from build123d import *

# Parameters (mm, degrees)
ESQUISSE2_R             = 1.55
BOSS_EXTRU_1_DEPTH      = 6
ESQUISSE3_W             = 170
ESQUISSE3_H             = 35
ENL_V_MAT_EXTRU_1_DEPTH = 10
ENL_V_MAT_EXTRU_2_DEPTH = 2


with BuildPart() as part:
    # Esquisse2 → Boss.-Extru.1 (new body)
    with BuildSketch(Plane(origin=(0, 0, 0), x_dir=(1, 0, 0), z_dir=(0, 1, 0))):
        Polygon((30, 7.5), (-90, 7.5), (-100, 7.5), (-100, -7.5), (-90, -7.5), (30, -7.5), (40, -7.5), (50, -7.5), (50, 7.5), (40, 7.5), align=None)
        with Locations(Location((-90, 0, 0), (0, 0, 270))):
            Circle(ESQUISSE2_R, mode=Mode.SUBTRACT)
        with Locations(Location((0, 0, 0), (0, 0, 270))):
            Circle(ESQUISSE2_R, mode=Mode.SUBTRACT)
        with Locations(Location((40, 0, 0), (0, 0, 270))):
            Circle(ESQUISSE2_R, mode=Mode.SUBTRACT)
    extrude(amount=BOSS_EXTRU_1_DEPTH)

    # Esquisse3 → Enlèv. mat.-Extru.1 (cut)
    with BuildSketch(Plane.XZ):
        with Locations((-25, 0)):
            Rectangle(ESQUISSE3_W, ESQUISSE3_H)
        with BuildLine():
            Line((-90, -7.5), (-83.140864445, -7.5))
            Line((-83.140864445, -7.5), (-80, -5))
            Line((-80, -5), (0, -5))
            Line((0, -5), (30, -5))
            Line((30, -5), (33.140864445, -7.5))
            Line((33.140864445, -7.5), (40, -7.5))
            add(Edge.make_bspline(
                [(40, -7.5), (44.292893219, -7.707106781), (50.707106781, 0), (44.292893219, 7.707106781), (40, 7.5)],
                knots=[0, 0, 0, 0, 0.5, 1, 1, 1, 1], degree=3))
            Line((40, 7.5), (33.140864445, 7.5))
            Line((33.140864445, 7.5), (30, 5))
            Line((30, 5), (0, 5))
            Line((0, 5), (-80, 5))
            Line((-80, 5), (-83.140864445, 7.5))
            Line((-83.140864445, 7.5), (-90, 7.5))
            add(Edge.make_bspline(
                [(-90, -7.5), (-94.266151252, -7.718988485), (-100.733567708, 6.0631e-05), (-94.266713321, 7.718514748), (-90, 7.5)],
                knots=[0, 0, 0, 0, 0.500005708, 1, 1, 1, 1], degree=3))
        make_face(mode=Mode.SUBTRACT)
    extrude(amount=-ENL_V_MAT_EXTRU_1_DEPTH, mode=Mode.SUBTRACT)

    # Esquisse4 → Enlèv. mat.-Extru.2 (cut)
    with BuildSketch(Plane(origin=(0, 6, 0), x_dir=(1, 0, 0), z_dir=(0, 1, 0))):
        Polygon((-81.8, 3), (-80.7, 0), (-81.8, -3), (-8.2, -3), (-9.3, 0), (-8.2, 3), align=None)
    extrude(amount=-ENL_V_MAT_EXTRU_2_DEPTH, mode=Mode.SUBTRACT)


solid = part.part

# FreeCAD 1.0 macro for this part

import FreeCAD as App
import Part
import Sketcher
from FreeCAD import Vector


def add_polygon(sketch, points):
    """Adds a closed chain of lines whose ends are joined by coincident constraints."""
    first, n = sketch.GeometryCount, len(points)
    for a, b in zip(points, points[1:] + points[:1]):
        sketch.addGeometry(Part.LineSegment(App.Vector(*a, 0), App.Vector(*b, 0)), False)
    for i in range(n):
        sketch.addConstraint(Sketcher.Constraint("Coincident", first + i, 2, first + (i + 1) % n, 1))

doc = App.newDocument("Part")
body = doc.addObject("PartDesign::Body", "Body")

# Sketch on XZ plane
sketch1 = body.newObject("Sketcher::SketchObject", "Sketch")
sketch1.AttachmentSupport = (doc.getObject("XZ_Plane"), [""])
sketch1.MapMode = "FlatFace"
add_polygon(sketch1, [(-100, -7.5), (-100, 7.5), (50, 7.5), (50, -7.5)])  # lines 0-3
sketch1.addGeometry(Part.Circle(Vector(-90, 0, 0), Vector(0, 0, 1), 1.6), False)  # 4
sketch1.addGeometry(Part.Circle(Vector(0, 0, 0), Vector(0, 0, 1), 1.6), False)  # 5
sketch1.addGeometry(Part.Circle(Vector(40, 0, 0), Vector(0, 0, 1), 1.6), False)  # 6
sketch1.addConstraint([
    Sketcher.Constraint("Vertical", 0),
    Sketcher.Constraint("Horizontal", 1),
    Sketcher.Constraint("Vertical", 2),
    Sketcher.Constraint("Horizontal", 3),
    Sketcher.Constraint("Coincident", 5, 3, -1, 1),
    Sketcher.Constraint("Equal", 4, 5),
    Sketcher.Constraint("Equal", 5, 6),
    Sketcher.Constraint("PointOnObject", 4, 3, -1),
    Sketcher.Constraint("PointOnObject", 6, 3, -1),
    Sketcher.Constraint("Diameter", 4, 3.1),
    Sketcher.Constraint("DistanceX", 1, 1, 1, 2, 150.0),
    Sketcher.Constraint("DistanceY", 0, 1, 0, 2, 15.0),
    Sketcher.Constraint("DistanceX", 4, 3, -1, 1, 90.0),
    Sketcher.Constraint("DistanceX", -1, 1, 6, 3, 40.0),
    Sketcher.Constraint("DistanceX", 0, 2, -1, 1, 100.0),
    Sketcher.Constraint("DistanceY", -1, 1, 0, 2, 7.5),
])
pad1 = body.newObject("PartDesign::Pad", "Pad")
pad1.Profile = sketch1
pad1.Length = 6
pad1.Reversed = True

# Sketch on XZ plane
sketch2 = body.newObject("Sketcher::SketchObject", "Sketch001")
sketch2.AttachmentSupport = (doc.getObject("XZ_Plane"), [""])
sketch2.MapMode = "FlatFace"
add_polygon(sketch2, [(-110, 17.5), (-110, -17.5), (60, -17.5), (60, 17.5)])  # lines 0-3
sketch2.addGeometry(Part.LineSegment(Vector(-83.140864, -7.5, 0), Vector(-90, -7.5, 0)), False)  # 4
sketch2.addGeometry(Part.BSplineCurve([Vector(-90, -7.5, 0), Vector(-94.266151, -7.718988, 0), Vector(-100.733568, 0.000061, 0), Vector(-94.266713, 7.718515, 0), Vector(-90, 7.5, 0)], [4, 1, 4], [0, 0.500005708, 1], False, 3, [1, 1, 1, 1, 1], False), False)  # 5
sketch2.addGeometry(Part.LineSegment(Vector(-90, 7.5, 0), Vector(-83.140864, 7.5, 0)), False)  # 6
sketch2.addGeometry(Part.LineSegment(Vector(-83.140864, 7.5, 0), Vector(-80, 5, 0)), False)  # 7
sketch2.addGeometry(Part.LineSegment(Vector(-80, 5, 0), Vector(30, 5, 0)), False)  # 8
sketch2.addGeometry(Part.LineSegment(Vector(30, 5, 0), Vector(33.140864, 7.5, 0)), False)  # 9
sketch2.addGeometry(Part.LineSegment(Vector(33.140864, 7.5, 0), Vector(40, 7.5, 0)), False)  # 10
sketch2.addGeometry(Part.BSplineCurve([Vector(40, -7.5, 0), Vector(44.292893, -7.707107, 0), Vector(50.707107, 0, 0), Vector(44.292893, 7.707107, 0), Vector(40, 7.5, 0)], [4, 1, 4], [0, 0.5, 1], False, 3, [1, 1, 1, 1, 1], False), False)  # 11
sketch2.addGeometry(Part.LineSegment(Vector(40, -7.5, 0), Vector(33.140864, -7.5, 0)), False)  # 12
sketch2.addGeometry(Part.LineSegment(Vector(33.140864, -7.5, 0), Vector(30, -5, 0)), False)  # 13
sketch2.addGeometry(Part.LineSegment(Vector(30, -5, 0), Vector(-80, -5, 0)), False)  # 14
sketch2.addGeometry(Part.LineSegment(Vector(-80, -5, 0), Vector(-83.140864, -7.5, 0)), False)  # 15
sketch2.addConstraint([
    Sketcher.Constraint("Block", 5),
    Sketcher.Constraint("Block", 11),
    Sketcher.Constraint("Coincident", 4, 2, 5, 1),
    Sketcher.Constraint("Coincident", 5, 2, 6, 1),
    Sketcher.Constraint("Coincident", 6, 2, 7, 1),
    Sketcher.Constraint("Coincident", 7, 2, 8, 1),
    Sketcher.Constraint("Coincident", 8, 2, 9, 1),
    Sketcher.Constraint("Coincident", 9, 2, 10, 1),
    Sketcher.Constraint("Coincident", 10, 2, 11, 2),
    Sketcher.Constraint("Coincident", 11, 1, 12, 1),
    Sketcher.Constraint("Coincident", 12, 2, 13, 1),
    Sketcher.Constraint("Coincident", 13, 2, 14, 1),
    Sketcher.Constraint("Coincident", 14, 2, 15, 1),
    Sketcher.Constraint("Coincident", 15, 2, 4, 1),
    Sketcher.Constraint("Vertical", 0),
    Sketcher.Constraint("Horizontal", 1),
    Sketcher.Constraint("Vertical", 2),
    Sketcher.Constraint("Horizontal", 3),
    Sketcher.Constraint("Horizontal", 4),
    Sketcher.Constraint("Horizontal", 6),
    Sketcher.Constraint("Horizontal", 8),
    Sketcher.Constraint("Horizontal", 10),
    Sketcher.Constraint("Horizontal", 12),
    Sketcher.Constraint("Horizontal", 14),
    Sketcher.Constraint("DistanceX", 1, 1, 1, 2, 170.0),
    Sketcher.Constraint("DistanceX", 8, 1, 8, 2, 110.0),
    Sketcher.Constraint("DistanceX", 14, 2, 14, 1, 110.0),
    Sketcher.Constraint("DistanceY", 0, 2, 0, 1, 35.0),
    Sketcher.Constraint("DistanceX", 0, 2, -1, 1, 110.0),
    Sketcher.Constraint("DistanceX", 7, 2, -1, 1, 80.0),
    Sketcher.Constraint("DistanceY", -1, 1, 7, 2, 5.0),
    Sketcher.Constraint("DistanceX", -1, 1, 13, 2, 30.0),
    Sketcher.Constraint("DistanceY", 13, 2, -1, 1, 5.0),
    Sketcher.Constraint("DistanceY", 0, 2, 4, 2, 10.0),
    Sketcher.Constraint("DistanceX", 4, 2, 4, 1, 6.859136),
    Sketcher.Constraint("DistanceX", 6, 1, 6, 2, 6.859136),
    Sketcher.Constraint("DistanceX", 10, 1, 10, 2, 6.859136),
    Sketcher.Constraint("DistanceX", 12, 2, 12, 1, 6.859136),
])
pocket1 = body.newObject("PartDesign::Pocket", "Pocket")
pocket1.Profile = sketch2
pocket1.Length = 10

# Sketch on XZ plane
sketch3 = body.newObject("Sketcher::SketchObject", "Sketch002")
sketch3.AttachmentSupport = (doc.getObject("XZ_Plane"), [""])
sketch3.MapMode = "FlatFace"
sketch3.AttachmentOffset = App.Placement(Vector(0, 0, -6), App.Rotation())
add_polygon(sketch3, [(-81.8, -3), (-80.7, 0), (-81.8, 3), (-8.2, 3), (-9.3, 0), (-8.2, -3)])  # lines 0-5
sketch3.addConstraint([
    Sketcher.Constraint("Horizontal", 2),
    Sketcher.Constraint("Horizontal", 5),
    Sketcher.Constraint("Symmetric", 2, 2, 4, 2, -1),
    Sketcher.Constraint("PointOnObject", 0, 2, -1),
    Sketcher.Constraint("PointOnObject", 3, 2, -1),
    Sketcher.Constraint("Parallel", 0, 3),
    Sketcher.Constraint("Parallel", 1, 4),
    Sketcher.Constraint("DistanceX", 2, 1, 2, 2, 73.6),
    Sketcher.Constraint("DistanceY", -1, 1, 1, 2, 3.0),
    Sketcher.Constraint("DistanceX", 0, 2, -1, 1, 80.7),
    Sketcher.Constraint("DistanceX", 1, 2, -1, 1, 81.8),
])
pocket2 = body.newObject("PartDesign::Pocket", "Pocket001")
pocket2.Profile = sketch3
pocket2.Length = 2
pocket2.Reversed = True

doc.recompute()
